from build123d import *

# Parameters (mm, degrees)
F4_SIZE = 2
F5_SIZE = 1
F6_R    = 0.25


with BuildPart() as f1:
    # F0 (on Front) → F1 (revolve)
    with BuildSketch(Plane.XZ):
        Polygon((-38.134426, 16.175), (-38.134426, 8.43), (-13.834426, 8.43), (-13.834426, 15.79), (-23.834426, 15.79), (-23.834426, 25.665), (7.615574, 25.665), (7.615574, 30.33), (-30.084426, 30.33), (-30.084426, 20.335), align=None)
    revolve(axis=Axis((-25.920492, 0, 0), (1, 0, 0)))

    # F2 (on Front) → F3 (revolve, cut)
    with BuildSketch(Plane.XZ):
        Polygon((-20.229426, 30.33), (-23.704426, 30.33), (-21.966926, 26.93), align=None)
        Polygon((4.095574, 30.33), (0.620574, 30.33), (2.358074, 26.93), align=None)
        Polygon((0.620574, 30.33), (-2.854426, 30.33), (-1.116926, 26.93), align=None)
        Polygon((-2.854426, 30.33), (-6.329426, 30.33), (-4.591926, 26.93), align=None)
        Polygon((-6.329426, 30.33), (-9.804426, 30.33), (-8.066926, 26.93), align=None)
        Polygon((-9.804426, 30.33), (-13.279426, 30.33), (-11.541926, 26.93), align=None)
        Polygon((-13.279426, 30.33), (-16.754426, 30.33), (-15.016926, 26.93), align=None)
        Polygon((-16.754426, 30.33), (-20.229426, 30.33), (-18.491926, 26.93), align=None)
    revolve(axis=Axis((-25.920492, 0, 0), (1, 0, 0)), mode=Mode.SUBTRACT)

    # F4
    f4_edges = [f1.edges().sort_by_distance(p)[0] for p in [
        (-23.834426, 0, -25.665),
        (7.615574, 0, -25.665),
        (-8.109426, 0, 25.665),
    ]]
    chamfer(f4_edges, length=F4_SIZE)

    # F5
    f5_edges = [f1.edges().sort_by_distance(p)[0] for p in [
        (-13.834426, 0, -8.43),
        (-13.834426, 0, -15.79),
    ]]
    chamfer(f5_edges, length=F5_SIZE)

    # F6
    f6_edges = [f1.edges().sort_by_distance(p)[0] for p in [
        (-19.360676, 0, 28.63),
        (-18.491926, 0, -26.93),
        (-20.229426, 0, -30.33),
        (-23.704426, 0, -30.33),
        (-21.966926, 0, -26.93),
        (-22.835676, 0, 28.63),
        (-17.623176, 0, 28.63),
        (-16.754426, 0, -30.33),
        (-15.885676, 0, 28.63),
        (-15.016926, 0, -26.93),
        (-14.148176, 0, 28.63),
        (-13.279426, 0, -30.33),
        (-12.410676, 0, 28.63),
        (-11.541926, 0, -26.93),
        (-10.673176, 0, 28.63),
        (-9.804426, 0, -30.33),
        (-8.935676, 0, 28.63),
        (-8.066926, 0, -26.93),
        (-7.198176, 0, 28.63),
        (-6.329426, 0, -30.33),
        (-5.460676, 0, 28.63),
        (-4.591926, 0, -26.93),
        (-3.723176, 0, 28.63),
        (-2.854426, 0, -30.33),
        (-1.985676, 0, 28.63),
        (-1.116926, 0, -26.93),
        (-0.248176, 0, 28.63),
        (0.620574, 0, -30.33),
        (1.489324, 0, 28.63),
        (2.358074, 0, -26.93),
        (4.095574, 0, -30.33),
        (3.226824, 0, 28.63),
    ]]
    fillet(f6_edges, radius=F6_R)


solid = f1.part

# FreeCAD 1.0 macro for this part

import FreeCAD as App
import Part
import Sketcher
from FreeCAD import Vector


def edges_at(feature, points):
    """Names of the edges that pass closest to the given points."""
    edges = feature.Shape.Edges
    near = lambda p: min(range(len(edges)), key=lambda i: edges[i].distToShape(Part.Vertex(*p))[0])
    return sorted({f"Edge{near(p) + 1}" for p in points})


def add_polygon(sketch, points):
    """Adds a closed chain of lines whose ends are joined by coincident constraints."""
    first, n = sketch.GeometryCount, len(points)
    for a, b in zip(points, points[1:] + points[:1]):
        sketch.addGeometry(Part.LineSegment(App.Vector(*a, 0), App.Vector(*b, 0)), False)
    for i in range(n):
        sketch.addConstraint(Sketcher.Constraint("Coincident", first + i, 2, first + (i + 1) % n, 1))

doc = App.newDocument("Part")
body = doc.addObject("PartDesign::Body", "Body")

# Sketch on XZ plane
sketch1 = body.newObject("Sketcher::SketchObject", "Sketch")
sketch1.AttachmentSupport = (doc.getObject("XZ_Plane"), [""])
sketch1.MapMode = "FlatFace"
add_polygon(sketch1, [(-38.1, 16.2), (-38.1, 8.4), (-13.8, 8.4), (-13.8, 15.8), (-23.8, 15.8), (-23.8, 25.7), (7.6, 25.7), (7.6, 30.3), (-30.1, 30.3), (-30.1, 20.3)])  # lines 0-9
sketch1.addConstraint([
    Sketcher.Constraint("Vertical", 0),
    Sketcher.Constraint("Horizontal", 1),
    Sketcher.Constraint("Vertical", 2),
    Sketcher.Constraint("Horizontal", 3),
    Sketcher.Constraint("Vertical", 4),
    Sketcher.Constraint("Horizontal", 5),
    Sketcher.Constraint("Vertical", 6),
    Sketcher.Constraint("Horizontal", 7),
    Sketcher.Constraint("Vertical", 8),
    Sketcher.Constraint("DistanceX", 3, 2, 3, 1, 10.0),
    Sketcher.Constraint("DistanceX", 1, 1, 1, 2, 24.3),
    Sketcher.Constraint("DistanceX", 7, 2, 7, 1, 37.7),
    Sketcher.Constraint("DistanceX", 5, 1, 5, 2, 31.45),
    Sketcher.Constraint("DistanceY", 2, 1, 2, 2, 7.36),
    Sketcher.Constraint("DistanceY", 1, 2, 6, 2, 21.9),
    Sketcher.Constraint("DistanceY", 0, 2, 0, 1, 7.745),
    Sketcher.Constraint("DistanceY", 4, 1, 4, 2, 9.875),
    Sketcher.Constraint("DistanceY", 8, 2, 8, 1, 9.995),
    Sketcher.Constraint("DistanceY", -1, 1, 0, 2, 8.43),
    Sketcher.Constraint("DistanceX", 0, 2, -1, 1, 38.134426),
])
revolution = body.newObject("PartDesign::Revolution", "Revolution")
revolution.Profile = sketch1
revolution.ReferenceAxis = (sketch1, ["H_Axis"])
revolution.Angle = 360

# Sketch on XZ plane
sketch2 = body.newObject("Sketcher::SketchObject", "Sketch001")
sketch2.AttachmentSupport = (doc.getObject("XZ_Plane"), [""])
sketch2.MapMode = "FlatFace"
add_polygon(sketch2, [(-20.2, 30.3), (-23.7, 30.3), (-22, 26.9)])  # lines 0-2
add_polygon(sketch2, [(4.1, 30.3), (0.6, 30.3), (2.4, 26.9)])  # lines 3-5
add_polygon(sketch2, [(0.6, 30.3), (-2.9, 30.3), (-1.1, 26.9)])  # lines 6-8
add_polygon(sketch2, [(-2.9, 30.3), (-6.3, 30.3), (-4.6, 26.9)])  # lines 9-11
add_polygon(sketch2, [(-6.3, 30.3), (-9.8, 30.3), (-8.1, 26.9)])  # lines 12-14
add_polygon(sketch2, [(-9.8, 30.3), (-13.3, 30.3), (-11.5, 26.9)])  # lines 15-17
add_polygon(sketch2, [(-13.3, 30.3), (-16.8, 30.3), (-15, 26.9)])  # lines 18-20
add_polygon(sketch2, [(-16.8, 30.3), (-20.2, 30.3), (-18.5, 26.9)])  # lines 21-23
sketch2.addConstraint([
    Sketcher.Constraint("Horizontal", 0),
    Sketcher.Constraint("Horizontal", 3),
    Sketcher.Constraint("Horizontal", 6),
    Sketcher.Constraint("Horizontal", 9),
    Sketcher.Constraint("Horizontal", 12),
    Sketcher.Constraint("Horizontal", 15),
    Sketcher.Constraint("Horizontal", 18),
    Sketcher.Constraint("Horizontal", 21),
    Sketcher.Constraint("Coincident", 8, 2, 3, 2),
    Sketcher.Constraint("Coincident", 11, 2, 6, 2),
    Sketcher.Constraint("Coincident", 14, 2, 9, 2),
    Sketcher.Constraint("Coincident", 17, 2, 12, 2),
    Sketcher.Constraint("Coincident", 20, 2, 15, 2),
    Sketcher.Constraint("Coincident", 21, 2, 2, 2),
    Sketcher.Constraint("Coincident", 23, 2, 18, 2),
    Sketcher.Constraint("Parallel", 1, 4),
    Sketcher.Constraint("Parallel", 2, 5),
    Sketcher.Constraint("Parallel", 4, 7),
    Sketcher.Constraint("Parallel", 5, 8),
    Sketcher.Constraint("Parallel", 7, 10),
    Sketcher.Constraint("Parallel", 8, 11),
    Sketcher.Constraint("Parallel", 10, 13),
    Sketcher.Constraint("Parallel", 11, 14),
    Sketcher.Constraint("Parallel", 13, 16),
    Sketcher.Constraint("Parallel", 14, 17),
    Sketcher.Constraint("Parallel", 16, 19),
    Sketcher.Constraint("Parallel", 17, 20),
    Sketcher.Constraint("Parallel", 19, 22),
    Sketcher.Constraint("Parallel", 20, 23),
    Sketcher.Constraint("Horizontal", 1, 2, 4, 2),
    Sketcher.Constraint("Horizontal", 4, 2, 7, 2),
    Sketcher.Constraint("Horizontal", 7, 2, 10, 2),
    Sketcher.Constraint("Horizontal", 10, 2, 13, 2),
    Sketcher.Constraint("Horizontal", 13, 2, 16, 2),
    Sketcher.Constraint("Horizontal", 16, 2, 19, 2),
    Sketcher.Constraint("Horizontal", 19, 2, 22, 2),
    Sketcher.Constraint("Equal", 1, 2),
    Sketcher.Constraint("DistanceY", 1, 2, 0, 2, 3.4),
    Sketcher.Constraint("DistanceX", 0, 2, 5, 2, 27.8),
    Sketcher.Constraint("DistanceY", -1, 1, 0, 2, 30.33),
    Sketcher.Constraint("DistanceX", 0, 2, -1, 1, 23.704426),
])
groove = body.newObject("PartDesign::Groove", "Groove")
groove.Profile = sketch2
groove.ReferenceAxis = (sketch2, ["H_Axis"])
groove.Angle = 360
doc.recompute()

chamfer = body.newObject("PartDesign::Chamfer", "Chamfer")
chamfer.Base = (groove, edges_at(groove, [(-23.834, 0, -25.665), (7.616, 0, -25.665), (-8.109, 0, 25.665)]))
chamfer.Size = 2
doc.recompute()

chamfer2 = body.newObject("PartDesign::Chamfer", "Chamfer001")
chamfer2.Base = (chamfer, edges_at(chamfer, [(-13.834, 0, -8.43), (-13.834, 0, -15.79)]))
chamfer2.Size = 1
doc.recompute()

fillet = body.newObject("PartDesign::Fillet", "Fillet")
fillet.Base = (chamfer2, edges_at(chamfer2, [
    (-19.361, 0, 28.63),
    (-18.492, 0, -26.93),
    (-20.229, 0, -30.33),
    (-23.704, 0, -30.33),
    (-21.967, 0, -26.93),
    (-22.836, 0, 28.63),
    (-17.623, 0, 28.63),
    (-16.754, 0, -30.33),
    (-15.886, 0, 28.63),
    (-15.017, 0, -26.93),
    (-14.148, 0, 28.63),
    (-13.279, 0, -30.33),
    (-12.411, 0, 28.63),
    (-11.542, 0, -26.93),
    (-10.673, 0, 28.63),
    (-9.804, 0, -30.33),
    (-8.936, 0, 28.63),
    (-8.067, 0, -26.93),
    (-7.198, 0, 28.63),
    (-6.329, 0, -30.33),
    (-5.461, 0, 28.63),
    (-4.592, 0, -26.93),
    (-3.723, 0, 28.63),
    (-2.854, 0, -30.33),
    (-1.986, 0, 28.63),
    (-1.117, 0, -26.93),
    (-0.248, 0, 28.63),
    (0.621, 0, -30.33),
    (1.489, 0, 28.63),
    (2.358, 0, -26.93),
    (4.096, 0, -30.33),
    (3.227, 0, 28.63),
]))
fillet.Radius = 0.25

doc.recompute()
